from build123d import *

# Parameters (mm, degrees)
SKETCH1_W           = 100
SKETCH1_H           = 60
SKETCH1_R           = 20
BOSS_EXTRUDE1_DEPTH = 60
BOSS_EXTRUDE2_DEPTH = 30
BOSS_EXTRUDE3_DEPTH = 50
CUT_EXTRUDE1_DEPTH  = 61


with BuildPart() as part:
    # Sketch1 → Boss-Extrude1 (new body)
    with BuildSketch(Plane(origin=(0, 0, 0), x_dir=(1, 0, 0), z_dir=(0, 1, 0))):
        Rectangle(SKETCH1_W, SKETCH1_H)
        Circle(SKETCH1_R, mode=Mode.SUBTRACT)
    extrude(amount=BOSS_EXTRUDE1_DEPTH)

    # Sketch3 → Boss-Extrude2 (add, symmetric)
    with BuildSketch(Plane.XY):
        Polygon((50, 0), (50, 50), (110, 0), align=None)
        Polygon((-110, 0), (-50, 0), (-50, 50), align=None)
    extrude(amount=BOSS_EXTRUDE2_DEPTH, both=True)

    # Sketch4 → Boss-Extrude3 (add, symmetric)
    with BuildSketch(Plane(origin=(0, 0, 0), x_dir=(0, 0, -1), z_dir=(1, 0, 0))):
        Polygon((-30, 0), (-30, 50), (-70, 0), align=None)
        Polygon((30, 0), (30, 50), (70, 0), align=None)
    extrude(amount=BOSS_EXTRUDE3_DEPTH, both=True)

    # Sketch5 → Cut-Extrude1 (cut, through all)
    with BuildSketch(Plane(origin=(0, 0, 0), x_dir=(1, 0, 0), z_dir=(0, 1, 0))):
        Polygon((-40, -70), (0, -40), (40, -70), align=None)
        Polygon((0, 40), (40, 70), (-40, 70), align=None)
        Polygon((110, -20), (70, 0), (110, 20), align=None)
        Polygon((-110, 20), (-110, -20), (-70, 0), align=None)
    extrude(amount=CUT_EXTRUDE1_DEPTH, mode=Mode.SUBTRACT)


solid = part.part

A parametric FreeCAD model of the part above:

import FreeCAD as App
import Part
import Sketcher


def add_polygon(sketch, points):
    """Adds a closed chain of lines whose ends are joined by coincident constraints."""
    first, n = sketch.GeometryCount, len(points)
    for a, b in zip(points, points[1:] + points[:1]):
        sketch.addGeometry(Part.LineSegment(App.Vector(*a, 0), App.Vector(*b, 0)), False)
    for i in range(n):
        sketch.addConstraint(Sketcher.Constraint("Coincident", first + i, 2, first + (i + 1) % n, 1))

doc = App.newDocument("Part")
body = doc.addObject("PartDesign::Body", "Body")

sketch1 = body.newObject("Sketcher::SketchObject", "Sketch")
sketch1.AttachmentSupport = (doc.getObject("XZ_Plane"), [""])
sketch1.MapMode = "FlatFace"
add_polygon(sketch1, [(-50, -30), (-50, 30), (50, 30), (50, -30)])
sketch1.addGeometry(Part.Circle(App.Vector(0, 0, 0), App.Vector(0, 0, 1), 20), False)
sketch1.addConstraint([
    Sketcher.Constraint("Vertical", 0),
    Sketcher.Constraint("Horizontal", 1),
    Sketcher.Constraint("Vertical", 2),
    Sketcher.Constraint("Horizontal", 3),
    Sketcher.Constraint("Coincident", 4, 3, -1, 1),
    Sketcher.Constraint("Symmetric", 0, 2, 2, 2, -1, 1),
    Sketcher.Constraint("Diameter", 4, 40.0),
    Sketcher.Constraint("DistanceX", 1, 1, 1, 2, 100.0),
    Sketcher.Constraint("DistanceY", 0, 1, 0, 2, 60.0),
])
pad1 = body.newObject("PartDesign::Pad", "Pad")
pad1.Profile = sketch1
pad1.Length = 60
pad1.Reversed = True

sketch2 = body.newObject("Sketcher::SketchObject", "Sketch001")
sketch2.AttachmentSupport = (doc.getObject("XY_Plane"), [""])
sketch2.MapMode = "FlatFace"
add_polygon(sketch2, [(50, 50), (50, 0), (110, 0)])
add_polygon(sketch2, [(-110, 0), (-50, 0), (-50, 50)])
sketch2.addConstraint([
    Sketcher.Constraint("Vertical", 0),
    Sketcher.Constraint("Horizontal", 1),
    Sketcher.Constraint("Horizontal", 3),
    Sketcher.Constraint("Vertical", 4),
    Sketcher.Constraint("Symmetric", 0, 2, 3, 2, -1, 1),
    Sketcher.Constraint("Symmetric", 1, 2, 5, 2, -2),
    Sketcher.Constraint("Horizontal", 2, 2, 4, 2),
    Sketcher.Constraint("DistanceX", 1, 1, 1, 2, 60.0),
    Sketcher.Constraint("DistanceY", 0, 2, 0, 1, 50.0),
    Sketcher.Constraint("DistanceX", -1, 1, 0, 2, 50.0),
])
pad2 = body.newObject("PartDesign::Pad", "Pad001")
pad2.Profile = sketch2
pad2.Length = 60
pad2.Midplane = True

sketch3 = body.newObject("Sketcher::SketchObject", "Sketch002")
sketch3.AttachmentSupport = (doc.getObject("YZ_Plane"), [""])
sketch3.MapMode = "FlatFace"
add_polygon(sketch3, [(0, 30), (50, 30), (0, 70)])
add_polygon(sketch3, [(50, -30), (0, -30), (0, -70)])
sketch3.addConstraint([
    Sketcher.Constraint("Horizontal", 0),
    Sketcher.Constraint("Vertical", 2),
    Sketcher.Constraint("Horizontal", 3),
    Sketcher.Constraint("Vertical", 4),
    Sketcher.Constraint("Symmetric", 2, 2, 3, 2, -1, 1),
    Sketcher.Constraint("Symmetric", 1, 2, 4, 2, -1),
    Sketcher.Constraint("Vertical", 0, 2, 5, 2),
    Sketcher.Constraint("DistanceX", 0, 1, 0, 2, 50.0),
    Sketcher.Constraint("DistanceY", 2, 2, 2, 1, 40.0),
    Sketcher.Constraint("DistanceY", -1, 1, 0, 2, 30.0),
])
pad3 = body.newObject("PartDesign::Pad", "Pad002")
pad3.Profile = sketch3
pad3.Length = 100
pad3.Midplane = True

sketch4 = body.newObject("Sketcher::SketchObject", "Sketch003")
sketch4.AttachmentSupport = (doc.getObject("XZ_Plane"), [""])
sketch4.MapMode = "FlatFace"
add_polygon(sketch4, [(0, 40), (-40, 70), (40, 70)])
add_polygon(sketch4, [(0, -40), (40, -70), (-40, -70)])
add_polygon(sketch4, [(70, 0), (110, 20), (110, -20)])
add_polygon(sketch4, [(-110, -20), (-110, 20), (-70, 0)])
sketch4.addConstraint([
    Sketcher.Constraint("Horizontal", 1),
    Sketcher.Constraint("Horizontal", 4),
    Sketcher.Constraint("Vertical", 7),
    Sketcher.Constraint("Vertical", 9),
    Sketcher.Constraint("Symmetric", 0, 2, 3, 2, -1, 1),
    Sketcher.Constraint("Symmetric", 2, 2, 5, 2, -1, 1),
    Sketcher.Constraint("Symmetric", 7, 2, 9, 2, -1, 1),
    Sketcher.Constraint("Symmetric", 8, 2, 10, 2, -1, 1),
    Sketcher.Constraint("PointOnObject", 2, 2, -2),
    Sketcher.Constraint("PointOnObject", 8, 2, -1),
    Sketcher.Constraint("Parallel", 2, 5),
    Sketcher.Constraint("Parallel", 6, 11),
    Sketcher.Constraint("Horizontal", 6, 2, 9, 2),
    Sketcher.Constraint("Vertical", 1, 2, 3, 2),
    Sketcher.Constraint("DistanceX", 1, 1, 1, 2, 80.0),
    Sketcher.Constraint("DistanceY", 7, 2, 7, 1, 40.0),
    Sketcher.Constraint("Distance", 0, 50.0),
    Sketcher.Constraint("DistanceY", -1, 1, 0, 2, 70.0),
    Sketcher.Constraint("DistanceX", -1, 1, 6, 2, 110.0),
    Sketcher.Constraint("DistanceX", -1, 1, 8, 2, 70.0),
])
pocket1 = body.newObject("PartDesign::Pocket", "Pocket")
pocket1.Profile = sketch4
pocket1.Type = "ThroughAll"

doc.recompute()
